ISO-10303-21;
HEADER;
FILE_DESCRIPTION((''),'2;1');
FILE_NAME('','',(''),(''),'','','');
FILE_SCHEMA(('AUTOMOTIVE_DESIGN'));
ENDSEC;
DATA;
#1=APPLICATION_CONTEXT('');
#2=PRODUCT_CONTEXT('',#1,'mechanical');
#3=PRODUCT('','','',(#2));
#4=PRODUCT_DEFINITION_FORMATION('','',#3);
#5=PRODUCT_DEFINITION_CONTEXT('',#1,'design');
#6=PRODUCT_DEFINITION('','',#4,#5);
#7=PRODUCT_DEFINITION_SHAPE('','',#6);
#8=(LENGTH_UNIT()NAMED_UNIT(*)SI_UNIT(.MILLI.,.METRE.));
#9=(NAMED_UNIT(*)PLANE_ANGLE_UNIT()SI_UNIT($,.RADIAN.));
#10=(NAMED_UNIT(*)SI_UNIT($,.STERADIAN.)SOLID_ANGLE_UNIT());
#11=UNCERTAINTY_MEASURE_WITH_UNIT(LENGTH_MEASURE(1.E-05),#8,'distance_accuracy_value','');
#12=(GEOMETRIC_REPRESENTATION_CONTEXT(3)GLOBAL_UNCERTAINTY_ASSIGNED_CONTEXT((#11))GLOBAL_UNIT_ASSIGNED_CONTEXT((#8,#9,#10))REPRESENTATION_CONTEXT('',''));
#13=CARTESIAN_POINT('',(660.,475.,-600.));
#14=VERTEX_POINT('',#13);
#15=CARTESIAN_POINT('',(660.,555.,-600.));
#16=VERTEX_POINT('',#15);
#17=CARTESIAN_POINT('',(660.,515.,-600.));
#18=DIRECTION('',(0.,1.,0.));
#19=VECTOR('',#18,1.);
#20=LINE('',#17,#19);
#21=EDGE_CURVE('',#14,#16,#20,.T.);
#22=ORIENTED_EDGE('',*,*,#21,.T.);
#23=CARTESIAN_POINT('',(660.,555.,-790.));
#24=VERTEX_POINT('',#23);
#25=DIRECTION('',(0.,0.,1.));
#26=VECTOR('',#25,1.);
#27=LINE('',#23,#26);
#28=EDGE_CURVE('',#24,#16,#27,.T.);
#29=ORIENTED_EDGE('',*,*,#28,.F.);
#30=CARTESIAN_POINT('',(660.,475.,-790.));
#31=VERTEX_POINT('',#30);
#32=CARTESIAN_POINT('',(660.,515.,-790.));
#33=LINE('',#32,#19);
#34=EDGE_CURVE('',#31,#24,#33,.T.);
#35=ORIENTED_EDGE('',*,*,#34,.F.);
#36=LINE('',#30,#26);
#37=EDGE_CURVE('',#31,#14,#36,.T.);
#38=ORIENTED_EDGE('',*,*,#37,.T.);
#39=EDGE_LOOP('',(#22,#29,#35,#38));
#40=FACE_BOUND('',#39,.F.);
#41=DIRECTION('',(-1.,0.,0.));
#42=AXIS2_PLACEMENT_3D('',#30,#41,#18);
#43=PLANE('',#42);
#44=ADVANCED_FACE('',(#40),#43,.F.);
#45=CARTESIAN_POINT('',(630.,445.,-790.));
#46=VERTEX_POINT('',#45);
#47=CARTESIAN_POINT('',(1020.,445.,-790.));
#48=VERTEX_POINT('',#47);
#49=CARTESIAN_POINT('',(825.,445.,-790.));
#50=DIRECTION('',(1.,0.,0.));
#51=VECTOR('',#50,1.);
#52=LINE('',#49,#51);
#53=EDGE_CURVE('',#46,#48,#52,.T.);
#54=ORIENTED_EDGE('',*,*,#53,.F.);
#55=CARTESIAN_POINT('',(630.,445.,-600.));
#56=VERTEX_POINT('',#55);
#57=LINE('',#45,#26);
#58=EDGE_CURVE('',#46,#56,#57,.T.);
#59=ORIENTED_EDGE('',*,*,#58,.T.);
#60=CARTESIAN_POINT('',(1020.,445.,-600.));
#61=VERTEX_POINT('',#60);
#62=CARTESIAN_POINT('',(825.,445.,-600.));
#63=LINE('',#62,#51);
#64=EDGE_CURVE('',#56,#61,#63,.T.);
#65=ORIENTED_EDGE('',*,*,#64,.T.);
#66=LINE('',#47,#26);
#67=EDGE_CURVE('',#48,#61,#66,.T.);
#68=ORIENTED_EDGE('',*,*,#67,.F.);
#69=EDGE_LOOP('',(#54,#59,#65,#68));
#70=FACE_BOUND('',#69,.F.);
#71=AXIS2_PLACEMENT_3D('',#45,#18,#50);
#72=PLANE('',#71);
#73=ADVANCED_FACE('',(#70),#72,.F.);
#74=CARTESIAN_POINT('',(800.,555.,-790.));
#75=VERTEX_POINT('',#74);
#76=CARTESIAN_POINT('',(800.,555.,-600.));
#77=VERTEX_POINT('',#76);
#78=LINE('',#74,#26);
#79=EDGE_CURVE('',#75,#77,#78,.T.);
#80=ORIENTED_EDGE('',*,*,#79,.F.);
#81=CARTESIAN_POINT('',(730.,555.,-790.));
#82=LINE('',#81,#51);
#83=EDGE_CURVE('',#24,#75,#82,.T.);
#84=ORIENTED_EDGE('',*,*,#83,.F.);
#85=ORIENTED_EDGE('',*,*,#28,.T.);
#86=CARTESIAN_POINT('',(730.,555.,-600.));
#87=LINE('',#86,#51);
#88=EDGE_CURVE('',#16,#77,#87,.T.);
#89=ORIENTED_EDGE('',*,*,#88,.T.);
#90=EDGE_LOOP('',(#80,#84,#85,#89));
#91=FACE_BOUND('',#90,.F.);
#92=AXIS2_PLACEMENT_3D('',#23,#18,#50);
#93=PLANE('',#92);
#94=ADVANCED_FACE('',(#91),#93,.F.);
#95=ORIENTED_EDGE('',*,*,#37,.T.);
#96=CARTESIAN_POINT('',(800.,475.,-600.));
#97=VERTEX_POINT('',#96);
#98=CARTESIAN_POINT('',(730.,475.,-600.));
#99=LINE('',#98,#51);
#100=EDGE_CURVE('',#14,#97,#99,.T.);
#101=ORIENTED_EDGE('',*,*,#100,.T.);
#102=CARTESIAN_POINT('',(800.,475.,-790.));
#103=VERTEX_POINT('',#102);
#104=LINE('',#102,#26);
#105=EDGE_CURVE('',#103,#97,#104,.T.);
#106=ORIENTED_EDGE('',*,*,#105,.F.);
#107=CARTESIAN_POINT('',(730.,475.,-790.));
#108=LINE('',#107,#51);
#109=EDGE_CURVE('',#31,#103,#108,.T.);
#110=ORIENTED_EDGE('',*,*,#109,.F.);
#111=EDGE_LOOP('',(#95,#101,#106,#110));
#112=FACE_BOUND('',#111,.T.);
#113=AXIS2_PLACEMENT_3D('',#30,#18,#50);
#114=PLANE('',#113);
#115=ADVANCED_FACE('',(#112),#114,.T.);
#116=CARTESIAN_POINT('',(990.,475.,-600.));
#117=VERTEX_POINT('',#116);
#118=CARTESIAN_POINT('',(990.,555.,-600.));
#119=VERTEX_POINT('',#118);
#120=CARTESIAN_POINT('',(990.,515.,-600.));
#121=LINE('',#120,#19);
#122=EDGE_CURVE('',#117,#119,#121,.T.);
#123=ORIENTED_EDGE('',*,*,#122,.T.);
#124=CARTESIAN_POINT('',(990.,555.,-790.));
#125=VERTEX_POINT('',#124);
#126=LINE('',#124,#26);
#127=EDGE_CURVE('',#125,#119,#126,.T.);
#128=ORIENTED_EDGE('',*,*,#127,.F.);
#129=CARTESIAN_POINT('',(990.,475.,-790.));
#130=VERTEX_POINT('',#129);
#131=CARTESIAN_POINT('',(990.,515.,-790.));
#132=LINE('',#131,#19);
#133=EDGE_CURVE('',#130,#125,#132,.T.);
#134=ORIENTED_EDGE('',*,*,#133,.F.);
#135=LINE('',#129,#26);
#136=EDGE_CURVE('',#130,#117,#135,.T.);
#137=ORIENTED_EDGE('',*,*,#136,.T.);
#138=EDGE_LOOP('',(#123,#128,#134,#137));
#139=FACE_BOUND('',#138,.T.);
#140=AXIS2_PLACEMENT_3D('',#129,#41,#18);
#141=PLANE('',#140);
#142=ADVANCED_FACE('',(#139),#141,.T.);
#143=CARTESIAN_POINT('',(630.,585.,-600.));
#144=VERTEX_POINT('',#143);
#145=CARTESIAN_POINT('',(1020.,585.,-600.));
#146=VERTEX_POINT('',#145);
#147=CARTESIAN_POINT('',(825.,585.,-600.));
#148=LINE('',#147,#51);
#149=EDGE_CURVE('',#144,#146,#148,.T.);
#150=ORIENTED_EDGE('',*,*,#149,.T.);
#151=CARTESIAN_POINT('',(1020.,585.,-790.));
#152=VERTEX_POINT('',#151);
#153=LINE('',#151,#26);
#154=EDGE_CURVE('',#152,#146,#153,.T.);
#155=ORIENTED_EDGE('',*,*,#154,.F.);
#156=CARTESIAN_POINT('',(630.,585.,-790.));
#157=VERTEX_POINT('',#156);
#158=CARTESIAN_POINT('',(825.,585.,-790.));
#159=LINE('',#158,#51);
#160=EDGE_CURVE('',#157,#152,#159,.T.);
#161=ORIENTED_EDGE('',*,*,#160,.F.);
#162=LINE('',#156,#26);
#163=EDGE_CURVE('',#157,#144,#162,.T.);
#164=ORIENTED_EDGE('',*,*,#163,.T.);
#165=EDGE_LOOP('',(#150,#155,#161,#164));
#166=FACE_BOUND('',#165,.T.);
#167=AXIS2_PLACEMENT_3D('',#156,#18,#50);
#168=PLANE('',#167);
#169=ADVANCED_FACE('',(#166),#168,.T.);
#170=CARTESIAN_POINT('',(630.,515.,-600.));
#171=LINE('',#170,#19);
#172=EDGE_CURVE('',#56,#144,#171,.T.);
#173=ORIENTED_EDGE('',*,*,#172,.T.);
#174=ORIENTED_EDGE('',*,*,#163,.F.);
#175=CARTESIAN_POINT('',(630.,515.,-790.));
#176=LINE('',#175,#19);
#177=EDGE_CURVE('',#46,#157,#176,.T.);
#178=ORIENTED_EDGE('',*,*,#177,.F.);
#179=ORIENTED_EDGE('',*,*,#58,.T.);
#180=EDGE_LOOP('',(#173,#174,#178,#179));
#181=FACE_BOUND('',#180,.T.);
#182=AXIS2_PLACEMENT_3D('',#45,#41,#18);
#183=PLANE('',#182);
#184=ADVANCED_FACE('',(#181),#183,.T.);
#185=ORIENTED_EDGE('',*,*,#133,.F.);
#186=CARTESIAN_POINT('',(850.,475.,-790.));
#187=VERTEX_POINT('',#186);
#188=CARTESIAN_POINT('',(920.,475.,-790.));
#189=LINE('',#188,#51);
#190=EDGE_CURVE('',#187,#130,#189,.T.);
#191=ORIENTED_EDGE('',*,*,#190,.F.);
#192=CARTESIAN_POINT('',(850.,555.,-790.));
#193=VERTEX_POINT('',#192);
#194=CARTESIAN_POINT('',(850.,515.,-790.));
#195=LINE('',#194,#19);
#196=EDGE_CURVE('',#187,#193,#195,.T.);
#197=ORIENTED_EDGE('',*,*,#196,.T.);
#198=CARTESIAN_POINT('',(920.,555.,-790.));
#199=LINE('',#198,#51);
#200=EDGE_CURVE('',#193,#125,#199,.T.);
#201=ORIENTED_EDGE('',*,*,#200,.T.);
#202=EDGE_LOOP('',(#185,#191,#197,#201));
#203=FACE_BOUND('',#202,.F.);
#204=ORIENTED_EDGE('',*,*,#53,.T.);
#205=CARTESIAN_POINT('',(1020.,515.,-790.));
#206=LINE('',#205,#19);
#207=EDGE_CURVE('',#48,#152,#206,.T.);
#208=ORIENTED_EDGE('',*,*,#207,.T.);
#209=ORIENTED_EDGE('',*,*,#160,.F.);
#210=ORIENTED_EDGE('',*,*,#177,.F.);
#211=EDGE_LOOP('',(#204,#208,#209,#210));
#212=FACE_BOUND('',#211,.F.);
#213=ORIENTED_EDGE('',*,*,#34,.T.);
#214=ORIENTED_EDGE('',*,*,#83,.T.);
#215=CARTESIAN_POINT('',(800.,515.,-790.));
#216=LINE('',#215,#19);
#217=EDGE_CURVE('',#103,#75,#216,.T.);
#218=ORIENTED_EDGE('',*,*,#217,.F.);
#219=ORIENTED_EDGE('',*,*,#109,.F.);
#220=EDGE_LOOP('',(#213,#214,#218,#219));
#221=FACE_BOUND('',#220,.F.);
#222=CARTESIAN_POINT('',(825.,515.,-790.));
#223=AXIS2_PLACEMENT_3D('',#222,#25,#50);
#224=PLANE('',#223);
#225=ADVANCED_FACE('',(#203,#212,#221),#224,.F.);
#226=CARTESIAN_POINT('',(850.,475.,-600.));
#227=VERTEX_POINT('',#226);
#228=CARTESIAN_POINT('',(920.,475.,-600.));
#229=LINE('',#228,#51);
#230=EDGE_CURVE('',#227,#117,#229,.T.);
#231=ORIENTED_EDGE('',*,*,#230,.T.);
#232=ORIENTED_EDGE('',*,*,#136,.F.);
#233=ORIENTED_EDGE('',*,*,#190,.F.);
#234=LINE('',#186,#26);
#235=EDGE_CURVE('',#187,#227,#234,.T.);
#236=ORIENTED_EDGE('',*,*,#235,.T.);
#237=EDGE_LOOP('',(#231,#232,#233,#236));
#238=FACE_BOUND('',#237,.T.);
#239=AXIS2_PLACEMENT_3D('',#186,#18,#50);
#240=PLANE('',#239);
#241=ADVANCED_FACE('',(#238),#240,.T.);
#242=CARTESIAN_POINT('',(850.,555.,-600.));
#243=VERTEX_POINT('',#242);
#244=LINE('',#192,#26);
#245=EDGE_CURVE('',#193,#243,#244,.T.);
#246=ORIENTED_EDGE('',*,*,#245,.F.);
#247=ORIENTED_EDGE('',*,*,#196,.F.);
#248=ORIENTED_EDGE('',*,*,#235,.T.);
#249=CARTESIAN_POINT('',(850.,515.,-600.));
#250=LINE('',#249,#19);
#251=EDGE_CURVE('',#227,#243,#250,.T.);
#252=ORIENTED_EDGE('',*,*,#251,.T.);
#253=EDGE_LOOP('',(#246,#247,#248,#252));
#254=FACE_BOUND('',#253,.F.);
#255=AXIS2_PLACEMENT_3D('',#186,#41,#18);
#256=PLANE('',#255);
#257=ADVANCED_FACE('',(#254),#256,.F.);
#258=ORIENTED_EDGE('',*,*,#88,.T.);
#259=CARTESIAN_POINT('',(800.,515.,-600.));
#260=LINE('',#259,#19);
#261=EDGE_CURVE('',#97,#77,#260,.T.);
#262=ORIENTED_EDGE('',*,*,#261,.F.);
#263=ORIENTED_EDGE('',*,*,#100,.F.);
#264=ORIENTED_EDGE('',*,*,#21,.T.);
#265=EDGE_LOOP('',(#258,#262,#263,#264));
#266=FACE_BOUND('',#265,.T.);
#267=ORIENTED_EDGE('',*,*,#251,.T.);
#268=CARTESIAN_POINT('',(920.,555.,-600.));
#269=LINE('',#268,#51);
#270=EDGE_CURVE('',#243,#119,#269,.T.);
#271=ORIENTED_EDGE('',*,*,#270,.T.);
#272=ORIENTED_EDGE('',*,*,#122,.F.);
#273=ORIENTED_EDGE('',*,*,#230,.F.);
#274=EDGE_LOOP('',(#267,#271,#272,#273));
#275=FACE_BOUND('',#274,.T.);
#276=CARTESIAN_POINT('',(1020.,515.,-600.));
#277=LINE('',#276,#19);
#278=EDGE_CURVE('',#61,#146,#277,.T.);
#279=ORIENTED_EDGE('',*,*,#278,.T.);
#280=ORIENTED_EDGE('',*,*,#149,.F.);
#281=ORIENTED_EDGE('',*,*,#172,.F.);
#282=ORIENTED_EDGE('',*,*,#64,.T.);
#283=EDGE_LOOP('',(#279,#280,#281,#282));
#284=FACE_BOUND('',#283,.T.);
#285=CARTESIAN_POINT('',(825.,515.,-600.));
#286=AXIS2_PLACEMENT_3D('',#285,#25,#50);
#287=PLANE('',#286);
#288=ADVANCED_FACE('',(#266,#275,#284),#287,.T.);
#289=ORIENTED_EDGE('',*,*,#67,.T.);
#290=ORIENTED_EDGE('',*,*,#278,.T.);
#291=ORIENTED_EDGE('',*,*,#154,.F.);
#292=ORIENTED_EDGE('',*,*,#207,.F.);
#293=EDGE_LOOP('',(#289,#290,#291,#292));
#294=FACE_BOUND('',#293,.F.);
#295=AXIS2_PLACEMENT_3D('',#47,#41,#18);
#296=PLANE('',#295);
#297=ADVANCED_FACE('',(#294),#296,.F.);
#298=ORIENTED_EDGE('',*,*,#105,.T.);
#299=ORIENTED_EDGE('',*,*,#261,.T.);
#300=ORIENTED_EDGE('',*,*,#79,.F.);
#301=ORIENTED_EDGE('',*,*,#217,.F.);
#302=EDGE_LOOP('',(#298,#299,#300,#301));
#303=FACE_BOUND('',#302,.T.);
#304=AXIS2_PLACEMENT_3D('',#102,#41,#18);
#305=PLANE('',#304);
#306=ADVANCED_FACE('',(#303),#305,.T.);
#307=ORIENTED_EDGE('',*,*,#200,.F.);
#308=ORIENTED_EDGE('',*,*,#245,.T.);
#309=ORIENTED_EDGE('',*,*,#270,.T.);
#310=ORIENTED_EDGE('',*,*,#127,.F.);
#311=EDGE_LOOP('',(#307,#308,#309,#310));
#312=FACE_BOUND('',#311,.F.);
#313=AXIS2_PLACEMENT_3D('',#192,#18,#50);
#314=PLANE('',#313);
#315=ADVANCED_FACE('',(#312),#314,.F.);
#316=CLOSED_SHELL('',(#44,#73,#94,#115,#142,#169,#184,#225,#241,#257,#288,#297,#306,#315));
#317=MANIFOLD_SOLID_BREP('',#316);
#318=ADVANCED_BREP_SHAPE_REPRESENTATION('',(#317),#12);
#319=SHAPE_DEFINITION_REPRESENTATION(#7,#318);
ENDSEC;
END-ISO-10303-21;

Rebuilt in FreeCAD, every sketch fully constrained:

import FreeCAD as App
import Part
import Sketcher
from FreeCAD import Vector

doc = App.newDocument("Part")
params = doc.addObject("Spreadsheet::Sheet", "Params")
for row, (alias, value) in enumerate([
    ("sketch1_width", "140 mm"),
    ("sketch1_height", "80 mm"),
    ("pad1_length", "190 mm"),
    ("sketch2_width", "140 mm"),
    ("sketch2_height", "80 mm"),
    ("pad2_length", "190 mm"),
    ("sketch3_width", "390 mm"),
    ("sketch3_height", "140 mm"),
    ("pad3_length", "190 mm"),
], start=1):
    params.set(f"A{row}", alias)
    params.set(f"B{row}", "=" + value)
    params.setAlias(f"B{row}", alias)

body = doc.addObject("PartDesign::Body", "Body")

sketch1 = body.newObject("Sketcher::SketchObject", "Sketch")
sketch1.AttachmentSupport = (doc.getObject("XY_Plane"), [""])
sketch1.MapMode = "FlatFace"
sketch1.addGeometry([
    Part.LineSegment(Vector(220, 110, 0), Vector(220, 30, 0)),
    Part.LineSegment(Vector(220, 30, 0), Vector(360, 30, 0)),
    Part.LineSegment(Vector(360, 30, 0), Vector(360, 110, 0)),
    Part.LineSegment(Vector(360, 110, 0), Vector(220, 110, 0)),
], False)
sketch1.addConstraint([
    Sketcher.Constraint("Coincident", 0, 2, 1, 1),
    Sketcher.Constraint("Coincident", 1, 2, 2, 1),
    Sketcher.Constraint("Coincident", 2, 2, 3, 1),
    Sketcher.Constraint("Coincident", 3, 2, 0, 1),
    Sketcher.Constraint("Vertical", 0),
    Sketcher.Constraint("Horizontal", 1),
    Sketcher.Constraint("Vertical", 2),
    Sketcher.Constraint("Horizontal", 3),
    Sketcher.Constraint("DistanceX", 1, 1, 1, 2, 140.0),
    Sketcher.Constraint("DistanceY", 0, 2, 0, 1, 80.0),
    Sketcher.Constraint("DistanceX", -1, 1, 0, 2, 220.0),
    Sketcher.Constraint("DistanceY", -1, 1, 0, 2, 30.0),
])
sketch1.setExpression("Constraints[8]", "Params.sketch1_width")
sketch1.setExpression("Constraints[9]", "Params.sketch1_height")
pad1 = body.newObject("PartDesign::Pad", "Pad")
pad1.Profile = sketch1
pad1.setExpression("Length", "Params.pad1_length")
body2 = doc.addObject("PartDesign::Body", "Body001")
body2.AllowCompound = True

sketch2 = body2.newObject("Sketcher::SketchObject", "Sketch001")
sketch2.AttachmentSupport = (doc.getObject("XY_Plane001"), [""])
sketch2.MapMode = "FlatFace"
sketch2.addGeometry([
    Part.LineSegment(Vector(30, 110, 0), Vector(30, 30, 0)),
    Part.LineSegment(Vector(30, 30, 0), Vector(170, 30, 0)),
    Part.LineSegment(Vector(170, 30, 0), Vector(170, 110, 0)),
    Part.LineSegment(Vector(170, 110, 0), Vector(30, 110, 0)),
], False)
sketch2.addConstraint([
    Sketcher.Constraint("Coincident", 0, 2, 1, 1),
    Sketcher.Constraint("Coincident", 1, 2, 2, 1),
    Sketcher.Constraint("Coincident", 2, 2, 3, 1),
    Sketcher.Constraint("Coincident", 3, 2, 0, 1),
    Sketcher.Constraint("Vertical", 0),
    Sketcher.Constraint("Horizontal", 1),
    Sketcher.Constraint("Vertical", 2),
    Sketcher.Constraint("Horizontal", 3),
    Sketcher.Constraint("DistanceX", 1, 1, 1, 2, 140.0),
    Sketcher.Constraint("DistanceY", 0, 2, 0, 1, 80.0),
    Sketcher.Constraint("DistanceX", -1, 1, 0, 2, 30.0),
    Sketcher.Constraint("DistanceY", -1, 1, 0, 2, 30.0),
])
sketch2.setExpression("Constraints[8]", "Params.sketch2_width")
sketch2.setExpression("Constraints[9]", "Params.sketch2_height")
pad2 = body2.newObject("PartDesign::Pad", "Pad001")
pad2.Profile = sketch2
pad2.setExpression("Length", "Params.pad2_length")
doc.recompute()

boolean = body2.newObject("PartDesign::Boolean", "Boolean")
boolean.Type = "Fuse"
boolean.addObjects([body])
body3 = doc.addObject("PartDesign::Body", "Body002")

sketch3 = body3.newObject("Sketcher::SketchObject", "Sketch002")
sketch3.AttachmentSupport = (doc.getObject("XY_Plane002"), [""])
sketch3.MapMode = "FlatFace"
sketch3.addGeometry([
    Part.LineSegment(Vector(0, 140, 0), Vector(0, 0, 0)),
    Part.LineSegment(Vector(0, 0, 0), Vector(390, 0, 0)),
    Part.LineSegment(Vector(390, 0, 0), Vector(390, 140, 0)),
    Part.LineSegment(Vector(390, 140, 0), Vector(0, 140, 0)),
], False)
sketch3.addConstraint([
    Sketcher.Constraint("Coincident", 0, 2, 1, 1),
    Sketcher.Constraint("Coincident", 1, 2, 2, 1),
    Sketcher.Constraint("Coincident", 2, 2, 3, 1),
    Sketcher.Constraint("Coincident", 3, 2, 0, 1),
    Sketcher.Constraint("Vertical", 0),
    Sketcher.Constraint("Horizontal", 1),
    Sketcher.Constraint("Vertical", 2),
    Sketcher.Constraint("Horizontal", 3),
    Sketcher.Constraint("Coincident", 0, 2, -1, 1),
    Sketcher.Constraint("DistanceX", 1, 1, 1, 2, 390.0),
    Sketcher.Constraint("DistanceY", 0, 2, 0, 1, 140.0),
])
sketch3.setExpression("Constraints[9]", "Params.sketch3_width")
sketch3.setExpression("Constraints[10]", "Params.sketch3_height")
pad3 = body3.newObject("PartDesign::Pad", "Pad002")
pad3.Profile = sketch3
pad3.setExpression("Length", "Params.pad3_length")
doc.recompute()

boolean2 = body3.newObject("PartDesign::Boolean", "Boolean001")
boolean2.Type = "Cut"
boolean2.addObjects([body2])
body4 = doc.addObject("PartDesign::Body", "Body003")
doc.recompute()

body3.Placement = App.Placement(Vector(630, 445, -790), App.Rotation(Vector(0, 0, 1), 0))
boolean3 = body4.newObject("PartDesign::Boolean", "Boolean002")
boolean3.Type = "Fuse"
boolean3.addObjects([body3])

doc.recompute()
